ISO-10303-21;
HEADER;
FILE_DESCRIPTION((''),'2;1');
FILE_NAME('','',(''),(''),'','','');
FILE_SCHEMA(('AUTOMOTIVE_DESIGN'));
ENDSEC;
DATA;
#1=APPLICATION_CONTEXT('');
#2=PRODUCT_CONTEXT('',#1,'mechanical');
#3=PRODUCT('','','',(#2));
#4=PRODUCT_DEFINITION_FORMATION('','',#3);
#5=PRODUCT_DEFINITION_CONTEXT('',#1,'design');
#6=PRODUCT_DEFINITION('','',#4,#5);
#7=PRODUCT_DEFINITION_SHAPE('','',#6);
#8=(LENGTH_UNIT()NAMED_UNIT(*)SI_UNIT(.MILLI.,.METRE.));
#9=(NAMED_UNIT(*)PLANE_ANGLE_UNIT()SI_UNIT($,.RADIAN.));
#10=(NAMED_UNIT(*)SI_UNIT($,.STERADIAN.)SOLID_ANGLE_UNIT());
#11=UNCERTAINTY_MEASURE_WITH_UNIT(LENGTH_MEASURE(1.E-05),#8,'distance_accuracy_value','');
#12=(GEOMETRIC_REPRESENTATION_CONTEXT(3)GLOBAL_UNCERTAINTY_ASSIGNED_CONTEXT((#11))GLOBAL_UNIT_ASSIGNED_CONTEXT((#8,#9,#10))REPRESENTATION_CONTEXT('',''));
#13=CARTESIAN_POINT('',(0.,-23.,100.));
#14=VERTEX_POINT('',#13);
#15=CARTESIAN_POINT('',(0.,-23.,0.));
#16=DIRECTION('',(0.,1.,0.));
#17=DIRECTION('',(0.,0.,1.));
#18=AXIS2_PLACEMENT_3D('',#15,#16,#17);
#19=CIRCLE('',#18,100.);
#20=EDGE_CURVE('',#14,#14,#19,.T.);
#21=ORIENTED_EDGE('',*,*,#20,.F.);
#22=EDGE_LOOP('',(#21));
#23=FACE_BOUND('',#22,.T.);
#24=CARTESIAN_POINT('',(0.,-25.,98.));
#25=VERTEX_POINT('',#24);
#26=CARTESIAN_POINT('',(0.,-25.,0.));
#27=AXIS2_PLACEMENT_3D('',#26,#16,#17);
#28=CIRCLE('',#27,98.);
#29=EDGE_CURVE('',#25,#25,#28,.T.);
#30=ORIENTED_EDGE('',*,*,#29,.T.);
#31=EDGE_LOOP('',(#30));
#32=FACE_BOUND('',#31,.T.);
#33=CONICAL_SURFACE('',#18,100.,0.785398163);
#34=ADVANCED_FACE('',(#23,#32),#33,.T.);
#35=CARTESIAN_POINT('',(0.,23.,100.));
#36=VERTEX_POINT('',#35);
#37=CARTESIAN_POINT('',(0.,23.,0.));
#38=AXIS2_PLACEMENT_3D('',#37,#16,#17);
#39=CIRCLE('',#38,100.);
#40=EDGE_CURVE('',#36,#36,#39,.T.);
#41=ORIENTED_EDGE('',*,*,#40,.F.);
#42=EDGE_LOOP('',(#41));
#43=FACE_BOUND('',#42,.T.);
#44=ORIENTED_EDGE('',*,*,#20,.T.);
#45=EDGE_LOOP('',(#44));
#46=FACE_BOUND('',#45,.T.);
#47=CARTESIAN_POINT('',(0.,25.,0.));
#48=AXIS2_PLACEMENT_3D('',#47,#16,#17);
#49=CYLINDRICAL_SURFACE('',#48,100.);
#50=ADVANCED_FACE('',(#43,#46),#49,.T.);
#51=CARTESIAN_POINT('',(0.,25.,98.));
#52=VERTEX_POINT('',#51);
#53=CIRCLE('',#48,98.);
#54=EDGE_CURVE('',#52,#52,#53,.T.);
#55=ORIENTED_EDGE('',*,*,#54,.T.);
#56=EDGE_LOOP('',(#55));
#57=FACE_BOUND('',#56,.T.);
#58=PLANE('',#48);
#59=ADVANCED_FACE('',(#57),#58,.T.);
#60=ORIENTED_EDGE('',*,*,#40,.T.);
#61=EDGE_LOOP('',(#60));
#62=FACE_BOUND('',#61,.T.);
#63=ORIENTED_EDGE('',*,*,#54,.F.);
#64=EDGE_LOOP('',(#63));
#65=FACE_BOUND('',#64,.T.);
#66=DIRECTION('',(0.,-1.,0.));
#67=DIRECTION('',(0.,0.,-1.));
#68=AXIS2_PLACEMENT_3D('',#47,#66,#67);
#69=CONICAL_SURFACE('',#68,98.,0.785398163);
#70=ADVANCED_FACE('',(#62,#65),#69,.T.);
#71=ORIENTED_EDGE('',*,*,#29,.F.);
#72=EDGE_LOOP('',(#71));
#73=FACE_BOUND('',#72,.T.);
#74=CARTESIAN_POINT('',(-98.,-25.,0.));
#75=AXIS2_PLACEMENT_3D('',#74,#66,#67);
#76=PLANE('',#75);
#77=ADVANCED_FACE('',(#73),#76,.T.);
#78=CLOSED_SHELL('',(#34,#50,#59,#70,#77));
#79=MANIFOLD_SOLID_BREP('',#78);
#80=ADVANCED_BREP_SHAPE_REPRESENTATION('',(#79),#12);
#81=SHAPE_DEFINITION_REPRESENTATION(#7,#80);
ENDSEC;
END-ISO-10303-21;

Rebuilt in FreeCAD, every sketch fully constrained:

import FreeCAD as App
import Part
import Sketcher

V = App.Vector


def add_polygon(sketch, points):
    """Adds a closed chain of lines whose ends are joined by coincident constraints."""
    first, n = sketch.GeometryCount, len(points)
    for a, b in zip(points, points[1:] + points[:1]):
        sketch.addGeometry(Part.LineSegment(App.Vector(*a, 0), App.Vector(*b, 0)), False)
    for i in range(n):
        sketch.addConstraint(Sketcher.Constraint("Coincident", first + i, 2, first + (i + 1) % n, 1))

doc = App.newDocument("Part")
params = doc.addObject("Spreadsheet::Sheet", "Params")
for row, (alias, value) in enumerate([
    ("sketch1_width", "98 mm"),
    ("sketch1_height", "46 mm"),
    ("sketch1_height2", "50 mm"),
    ("revolution_angle", "360 deg"),
], start=1):
    params.set(f"A{row}", alias)
    params.set(f"B{row}", "=" + value)
    params.setAlias(f"B{row}", alias)

body = doc.addObject("PartDesign::Body", "Body")

# Sketch on XY plane
sketch1 = doc.addObject("Sketcher::SketchObject", "Sketch")
body.addObject(sketch1)
sketch1.AttachmentSupport = (doc.XY_Plane, [""])
sketch1.MapMode = "FlatFace"
add_polygon(sketch1, [(-98, 25), (-100, 23), (-100, -23), (-98, -25), (0, -25), (0, 25)])  # lines 0-5
sketch1.addConstraint(Sketcher.Constraint("Vertical", 1))
sketch1.addConstraint(Sketcher.Constraint("Horizontal", 3))
sketch1.addConstraint(Sketcher.Constraint("Vertical", 4))
sketch1.addConstraint(Sketcher.Constraint("Horizontal", 5))
sketch1.addConstraint(Sketcher.Constraint("Symmetric", 3, 2, 4, 2, -1, 1))
sketch1.addConstraint(Sketcher.Constraint("Perpendicular", 0, 2))
sketch1.addConstraint(Sketcher.Constraint("Vertical", 2, 2, 5, 2))
sketch1.addConstraint(Sketcher.Constraint("Equal", 0, 2))
sketch1.addConstraint(Sketcher.Constraint("DistanceX", 3, 1, 3, 2, 98.0))
sketch1.addConstraint(Sketcher.Constraint("DistanceY", 1, 2, 1, 1, 46.0))
sketch1.addConstraint(Sketcher.Constraint("DistanceY", 4, 1, 4, 2, 50.0))
sketch1.setExpression("Constraints[14]", "Params.sketch1_width")
sketch1.setExpression("Constraints[15]", "Params.sketch1_height")
sketch1.setExpression("Constraints[16]", "Params.sketch1_height2")
revolution = doc.addObject("PartDesign::Revolution", "Revolution")
body.addObject(revolution)
revolution.Profile = sketch1
revolution.ReferenceAxis = (sketch1, ["V_Axis"])
revolution.setExpression("Angle", "Params.revolution_angle")

doc.recompute()
